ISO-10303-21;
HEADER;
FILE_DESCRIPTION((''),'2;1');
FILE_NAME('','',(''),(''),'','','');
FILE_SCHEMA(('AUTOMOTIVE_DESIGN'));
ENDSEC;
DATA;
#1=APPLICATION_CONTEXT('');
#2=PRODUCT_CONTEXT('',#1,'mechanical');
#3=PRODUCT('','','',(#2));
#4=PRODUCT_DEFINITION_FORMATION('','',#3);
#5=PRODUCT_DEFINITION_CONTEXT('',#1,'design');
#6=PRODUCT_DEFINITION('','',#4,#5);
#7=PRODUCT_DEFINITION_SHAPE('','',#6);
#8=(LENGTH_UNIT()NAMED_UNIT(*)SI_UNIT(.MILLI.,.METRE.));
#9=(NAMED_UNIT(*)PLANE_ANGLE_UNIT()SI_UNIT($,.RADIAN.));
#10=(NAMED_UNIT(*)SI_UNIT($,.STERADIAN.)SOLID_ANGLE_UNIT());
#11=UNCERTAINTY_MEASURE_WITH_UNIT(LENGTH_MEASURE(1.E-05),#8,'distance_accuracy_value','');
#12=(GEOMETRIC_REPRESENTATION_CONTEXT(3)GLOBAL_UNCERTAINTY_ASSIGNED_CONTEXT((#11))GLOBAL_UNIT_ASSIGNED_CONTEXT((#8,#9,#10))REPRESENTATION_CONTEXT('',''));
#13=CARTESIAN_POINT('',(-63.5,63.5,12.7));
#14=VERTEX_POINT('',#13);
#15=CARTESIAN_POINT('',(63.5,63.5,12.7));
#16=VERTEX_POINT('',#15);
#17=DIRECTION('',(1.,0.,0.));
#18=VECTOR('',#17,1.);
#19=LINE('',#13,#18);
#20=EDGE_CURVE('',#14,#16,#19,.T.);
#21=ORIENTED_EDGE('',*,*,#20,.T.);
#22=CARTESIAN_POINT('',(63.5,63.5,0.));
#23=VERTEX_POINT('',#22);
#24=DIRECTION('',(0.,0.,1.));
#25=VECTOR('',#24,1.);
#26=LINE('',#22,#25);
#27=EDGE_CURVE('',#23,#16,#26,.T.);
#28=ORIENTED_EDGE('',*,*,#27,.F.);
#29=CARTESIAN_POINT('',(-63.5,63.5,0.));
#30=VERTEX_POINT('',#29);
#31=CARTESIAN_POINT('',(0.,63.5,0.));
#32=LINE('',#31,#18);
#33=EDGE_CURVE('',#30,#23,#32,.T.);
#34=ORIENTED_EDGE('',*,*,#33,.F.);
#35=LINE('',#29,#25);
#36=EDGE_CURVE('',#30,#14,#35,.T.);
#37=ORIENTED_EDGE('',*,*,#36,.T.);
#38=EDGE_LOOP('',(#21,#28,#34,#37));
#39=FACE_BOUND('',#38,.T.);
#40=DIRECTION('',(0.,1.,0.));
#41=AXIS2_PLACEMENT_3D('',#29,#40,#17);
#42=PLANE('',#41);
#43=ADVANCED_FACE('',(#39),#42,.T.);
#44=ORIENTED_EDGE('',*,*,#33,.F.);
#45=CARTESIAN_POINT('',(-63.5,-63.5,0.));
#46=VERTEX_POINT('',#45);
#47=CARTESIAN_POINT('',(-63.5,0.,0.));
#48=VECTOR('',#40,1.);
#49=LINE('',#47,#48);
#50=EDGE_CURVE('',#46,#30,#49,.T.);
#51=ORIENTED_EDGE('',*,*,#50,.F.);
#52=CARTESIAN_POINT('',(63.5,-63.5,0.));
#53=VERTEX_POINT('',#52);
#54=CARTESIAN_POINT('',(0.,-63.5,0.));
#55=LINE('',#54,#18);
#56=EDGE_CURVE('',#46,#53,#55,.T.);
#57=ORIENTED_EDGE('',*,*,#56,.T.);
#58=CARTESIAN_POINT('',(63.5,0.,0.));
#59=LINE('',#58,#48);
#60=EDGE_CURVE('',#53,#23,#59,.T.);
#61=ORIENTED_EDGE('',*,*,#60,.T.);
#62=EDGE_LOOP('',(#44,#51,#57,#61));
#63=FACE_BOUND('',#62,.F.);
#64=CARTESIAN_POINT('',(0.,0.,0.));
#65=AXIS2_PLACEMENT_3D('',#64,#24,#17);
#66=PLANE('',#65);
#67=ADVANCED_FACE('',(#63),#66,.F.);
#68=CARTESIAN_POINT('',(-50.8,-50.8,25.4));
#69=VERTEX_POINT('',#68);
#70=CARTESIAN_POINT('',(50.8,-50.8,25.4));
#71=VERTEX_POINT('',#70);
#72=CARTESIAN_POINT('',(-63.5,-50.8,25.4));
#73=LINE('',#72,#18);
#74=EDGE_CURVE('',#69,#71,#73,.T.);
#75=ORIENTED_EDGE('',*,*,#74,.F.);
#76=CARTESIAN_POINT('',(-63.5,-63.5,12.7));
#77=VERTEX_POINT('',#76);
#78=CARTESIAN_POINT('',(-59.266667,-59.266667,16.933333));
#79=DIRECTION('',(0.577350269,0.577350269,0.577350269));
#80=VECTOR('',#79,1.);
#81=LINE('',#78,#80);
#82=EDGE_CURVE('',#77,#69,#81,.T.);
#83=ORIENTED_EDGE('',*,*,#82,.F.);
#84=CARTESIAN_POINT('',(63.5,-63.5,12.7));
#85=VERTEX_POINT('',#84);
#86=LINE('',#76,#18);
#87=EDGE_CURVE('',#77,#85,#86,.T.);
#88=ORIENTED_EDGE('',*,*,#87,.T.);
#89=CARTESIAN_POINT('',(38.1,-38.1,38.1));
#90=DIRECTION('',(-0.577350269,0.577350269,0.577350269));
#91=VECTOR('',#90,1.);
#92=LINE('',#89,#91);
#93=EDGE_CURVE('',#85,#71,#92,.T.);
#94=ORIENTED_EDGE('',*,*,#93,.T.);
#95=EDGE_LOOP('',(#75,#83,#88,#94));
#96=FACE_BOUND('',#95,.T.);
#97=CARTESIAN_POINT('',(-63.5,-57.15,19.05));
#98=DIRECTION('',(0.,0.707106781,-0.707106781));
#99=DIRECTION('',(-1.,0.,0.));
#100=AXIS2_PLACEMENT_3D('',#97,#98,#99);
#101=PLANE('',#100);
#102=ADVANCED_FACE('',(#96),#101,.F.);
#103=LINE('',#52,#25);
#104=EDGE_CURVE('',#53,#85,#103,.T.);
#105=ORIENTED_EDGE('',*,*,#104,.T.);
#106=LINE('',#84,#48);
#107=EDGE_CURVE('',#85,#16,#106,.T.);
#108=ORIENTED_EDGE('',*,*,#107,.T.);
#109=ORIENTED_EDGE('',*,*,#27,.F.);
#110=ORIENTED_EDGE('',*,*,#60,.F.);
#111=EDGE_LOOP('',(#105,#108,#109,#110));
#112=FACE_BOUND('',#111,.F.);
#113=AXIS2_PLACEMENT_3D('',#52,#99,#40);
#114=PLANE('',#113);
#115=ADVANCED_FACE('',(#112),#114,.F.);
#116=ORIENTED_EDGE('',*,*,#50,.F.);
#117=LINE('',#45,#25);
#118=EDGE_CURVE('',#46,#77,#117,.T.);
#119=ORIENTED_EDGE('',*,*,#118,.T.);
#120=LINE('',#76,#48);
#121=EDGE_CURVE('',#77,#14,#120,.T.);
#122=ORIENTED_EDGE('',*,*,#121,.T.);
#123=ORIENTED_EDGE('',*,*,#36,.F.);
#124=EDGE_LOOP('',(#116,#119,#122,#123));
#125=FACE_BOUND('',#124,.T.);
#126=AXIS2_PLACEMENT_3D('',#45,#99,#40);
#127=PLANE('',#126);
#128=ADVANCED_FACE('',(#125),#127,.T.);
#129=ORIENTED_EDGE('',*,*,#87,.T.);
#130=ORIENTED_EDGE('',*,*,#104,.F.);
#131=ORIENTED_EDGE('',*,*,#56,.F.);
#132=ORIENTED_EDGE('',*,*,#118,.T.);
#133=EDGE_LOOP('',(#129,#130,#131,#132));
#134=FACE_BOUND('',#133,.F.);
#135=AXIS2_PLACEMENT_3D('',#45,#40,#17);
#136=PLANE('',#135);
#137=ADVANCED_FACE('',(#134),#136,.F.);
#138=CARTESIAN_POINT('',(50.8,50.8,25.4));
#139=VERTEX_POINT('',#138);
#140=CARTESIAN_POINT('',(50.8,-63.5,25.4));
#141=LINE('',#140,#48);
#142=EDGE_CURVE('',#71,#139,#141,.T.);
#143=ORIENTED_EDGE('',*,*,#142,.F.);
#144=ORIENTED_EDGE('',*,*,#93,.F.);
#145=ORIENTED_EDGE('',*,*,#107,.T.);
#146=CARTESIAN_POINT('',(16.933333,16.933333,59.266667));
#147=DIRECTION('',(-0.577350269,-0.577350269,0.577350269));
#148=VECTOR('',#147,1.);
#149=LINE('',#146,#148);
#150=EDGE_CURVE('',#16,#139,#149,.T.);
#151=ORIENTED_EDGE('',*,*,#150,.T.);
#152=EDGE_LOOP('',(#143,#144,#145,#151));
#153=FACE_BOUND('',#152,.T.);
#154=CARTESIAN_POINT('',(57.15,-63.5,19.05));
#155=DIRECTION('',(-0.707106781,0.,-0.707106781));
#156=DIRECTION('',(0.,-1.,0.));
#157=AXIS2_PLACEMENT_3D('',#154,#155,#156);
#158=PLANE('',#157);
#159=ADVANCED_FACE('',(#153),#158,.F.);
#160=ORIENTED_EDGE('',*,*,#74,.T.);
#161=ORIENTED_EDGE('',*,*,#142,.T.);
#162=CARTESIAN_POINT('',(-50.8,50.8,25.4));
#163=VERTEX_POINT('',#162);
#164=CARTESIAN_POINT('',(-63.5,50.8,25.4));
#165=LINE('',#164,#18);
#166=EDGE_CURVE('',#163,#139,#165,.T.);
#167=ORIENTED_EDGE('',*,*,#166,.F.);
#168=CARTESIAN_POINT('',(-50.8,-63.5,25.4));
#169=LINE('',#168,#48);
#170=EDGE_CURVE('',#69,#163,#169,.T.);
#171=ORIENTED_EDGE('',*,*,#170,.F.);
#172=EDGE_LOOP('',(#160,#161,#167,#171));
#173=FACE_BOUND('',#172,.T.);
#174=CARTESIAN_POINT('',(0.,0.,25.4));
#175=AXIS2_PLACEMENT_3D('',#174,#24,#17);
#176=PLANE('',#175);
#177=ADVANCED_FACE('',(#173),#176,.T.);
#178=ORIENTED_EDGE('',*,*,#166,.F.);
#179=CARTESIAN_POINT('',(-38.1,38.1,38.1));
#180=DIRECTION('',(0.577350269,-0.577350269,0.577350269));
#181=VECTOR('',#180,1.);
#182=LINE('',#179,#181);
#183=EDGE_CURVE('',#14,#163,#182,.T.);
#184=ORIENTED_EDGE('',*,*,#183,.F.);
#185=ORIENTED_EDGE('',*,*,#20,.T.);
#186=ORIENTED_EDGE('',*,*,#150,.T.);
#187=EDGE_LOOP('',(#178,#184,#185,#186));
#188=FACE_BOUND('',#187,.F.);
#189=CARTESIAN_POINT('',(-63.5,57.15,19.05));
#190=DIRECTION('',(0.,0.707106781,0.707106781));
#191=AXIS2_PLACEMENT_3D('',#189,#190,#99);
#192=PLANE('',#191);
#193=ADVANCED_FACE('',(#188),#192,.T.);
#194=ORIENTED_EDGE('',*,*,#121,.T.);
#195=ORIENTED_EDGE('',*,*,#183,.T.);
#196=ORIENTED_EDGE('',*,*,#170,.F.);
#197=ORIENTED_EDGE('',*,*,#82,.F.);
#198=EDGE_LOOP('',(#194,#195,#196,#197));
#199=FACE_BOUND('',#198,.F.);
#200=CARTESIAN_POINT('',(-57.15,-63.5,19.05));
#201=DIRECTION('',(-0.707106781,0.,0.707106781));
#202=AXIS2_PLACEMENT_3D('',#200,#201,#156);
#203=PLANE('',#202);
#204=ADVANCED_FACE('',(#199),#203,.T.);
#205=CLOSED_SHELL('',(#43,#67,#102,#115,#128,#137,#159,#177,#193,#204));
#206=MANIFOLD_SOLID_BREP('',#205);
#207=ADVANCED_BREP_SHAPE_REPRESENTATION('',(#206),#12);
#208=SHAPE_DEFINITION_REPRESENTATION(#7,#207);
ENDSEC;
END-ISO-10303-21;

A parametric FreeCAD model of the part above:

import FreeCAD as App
import Part
import Sketcher
from FreeCAD import Vector
Q = App.Units.Quantity


def edges_at(feature, points):
    """Names of the edges that pass closest to the given points."""
    edges = feature.Shape.Edges
    near = lambda p: min(range(len(edges)), key=lambda i: edges[i].distToShape(Part.Vertex(*p))[0])
    return sorted({f"Edge{near(p) + 1}" for p in points})


def add_polygon(sketch, points):
    """Adds a closed chain of lines whose ends are joined by coincident constraints."""
    first, n = sketch.GeometryCount, len(points)
    for a, b in zip(points, points[1:] + points[:1]):
        sketch.addGeometry(Part.LineSegment(App.Vector(*a, 0), App.Vector(*b, 0)), False)
    for i in range(n):
        sketch.addConstraint(Sketcher.Constraint("Coincident", first + i, 2, first + (i + 1) % n, 1))

doc = App.newDocument("Part")
body = doc.addObject("PartDesign::Body", "Body")

# Sketch on XY plane
sketch1 = body.newObject("Sketcher::SketchObject", "Sketch")
sketch1.AttachmentSupport = (doc.getObject("XY_Plane"), [""])
sketch1.MapMode = "FlatFace"
add_polygon(sketch1, [(-64, 64), (-64, -64), (64, -64), (64, 64)])  # lines 0-3
sketch1.addConstraint([
    Sketcher.Constraint("Vertical", 0),
    Sketcher.Constraint("Horizontal", 1),
    Sketcher.Constraint("Vertical", 2),
    Sketcher.Constraint("Horizontal", 3),
    Sketcher.Constraint("Symmetric", 0, 2, 2, 2, -1, 1),
    Sketcher.Constraint("Equal", 3, 0),
    Sketcher.Constraint("DistanceX", 1, 1, 1, 2, Q("5 in")),
])
pad1 = body.newObject("PartDesign::Pad", "Pad")
pad1.Profile = sketch1
pad1.Length = Q("1 in")
doc.recompute()

chamfer = body.newObject("PartDesign::Chamfer", "Chamfer")
chamfer.Base = (pad1, edges_at(pad1, [
    (0, -63.5, 25.4),
    (-63.5, 0, 25.4),
    (63.5, 0, 25.4),
    (0, 63.5, 25.4),
]))
chamfer.Size = Q("0.5 in")

doc.recompute()
